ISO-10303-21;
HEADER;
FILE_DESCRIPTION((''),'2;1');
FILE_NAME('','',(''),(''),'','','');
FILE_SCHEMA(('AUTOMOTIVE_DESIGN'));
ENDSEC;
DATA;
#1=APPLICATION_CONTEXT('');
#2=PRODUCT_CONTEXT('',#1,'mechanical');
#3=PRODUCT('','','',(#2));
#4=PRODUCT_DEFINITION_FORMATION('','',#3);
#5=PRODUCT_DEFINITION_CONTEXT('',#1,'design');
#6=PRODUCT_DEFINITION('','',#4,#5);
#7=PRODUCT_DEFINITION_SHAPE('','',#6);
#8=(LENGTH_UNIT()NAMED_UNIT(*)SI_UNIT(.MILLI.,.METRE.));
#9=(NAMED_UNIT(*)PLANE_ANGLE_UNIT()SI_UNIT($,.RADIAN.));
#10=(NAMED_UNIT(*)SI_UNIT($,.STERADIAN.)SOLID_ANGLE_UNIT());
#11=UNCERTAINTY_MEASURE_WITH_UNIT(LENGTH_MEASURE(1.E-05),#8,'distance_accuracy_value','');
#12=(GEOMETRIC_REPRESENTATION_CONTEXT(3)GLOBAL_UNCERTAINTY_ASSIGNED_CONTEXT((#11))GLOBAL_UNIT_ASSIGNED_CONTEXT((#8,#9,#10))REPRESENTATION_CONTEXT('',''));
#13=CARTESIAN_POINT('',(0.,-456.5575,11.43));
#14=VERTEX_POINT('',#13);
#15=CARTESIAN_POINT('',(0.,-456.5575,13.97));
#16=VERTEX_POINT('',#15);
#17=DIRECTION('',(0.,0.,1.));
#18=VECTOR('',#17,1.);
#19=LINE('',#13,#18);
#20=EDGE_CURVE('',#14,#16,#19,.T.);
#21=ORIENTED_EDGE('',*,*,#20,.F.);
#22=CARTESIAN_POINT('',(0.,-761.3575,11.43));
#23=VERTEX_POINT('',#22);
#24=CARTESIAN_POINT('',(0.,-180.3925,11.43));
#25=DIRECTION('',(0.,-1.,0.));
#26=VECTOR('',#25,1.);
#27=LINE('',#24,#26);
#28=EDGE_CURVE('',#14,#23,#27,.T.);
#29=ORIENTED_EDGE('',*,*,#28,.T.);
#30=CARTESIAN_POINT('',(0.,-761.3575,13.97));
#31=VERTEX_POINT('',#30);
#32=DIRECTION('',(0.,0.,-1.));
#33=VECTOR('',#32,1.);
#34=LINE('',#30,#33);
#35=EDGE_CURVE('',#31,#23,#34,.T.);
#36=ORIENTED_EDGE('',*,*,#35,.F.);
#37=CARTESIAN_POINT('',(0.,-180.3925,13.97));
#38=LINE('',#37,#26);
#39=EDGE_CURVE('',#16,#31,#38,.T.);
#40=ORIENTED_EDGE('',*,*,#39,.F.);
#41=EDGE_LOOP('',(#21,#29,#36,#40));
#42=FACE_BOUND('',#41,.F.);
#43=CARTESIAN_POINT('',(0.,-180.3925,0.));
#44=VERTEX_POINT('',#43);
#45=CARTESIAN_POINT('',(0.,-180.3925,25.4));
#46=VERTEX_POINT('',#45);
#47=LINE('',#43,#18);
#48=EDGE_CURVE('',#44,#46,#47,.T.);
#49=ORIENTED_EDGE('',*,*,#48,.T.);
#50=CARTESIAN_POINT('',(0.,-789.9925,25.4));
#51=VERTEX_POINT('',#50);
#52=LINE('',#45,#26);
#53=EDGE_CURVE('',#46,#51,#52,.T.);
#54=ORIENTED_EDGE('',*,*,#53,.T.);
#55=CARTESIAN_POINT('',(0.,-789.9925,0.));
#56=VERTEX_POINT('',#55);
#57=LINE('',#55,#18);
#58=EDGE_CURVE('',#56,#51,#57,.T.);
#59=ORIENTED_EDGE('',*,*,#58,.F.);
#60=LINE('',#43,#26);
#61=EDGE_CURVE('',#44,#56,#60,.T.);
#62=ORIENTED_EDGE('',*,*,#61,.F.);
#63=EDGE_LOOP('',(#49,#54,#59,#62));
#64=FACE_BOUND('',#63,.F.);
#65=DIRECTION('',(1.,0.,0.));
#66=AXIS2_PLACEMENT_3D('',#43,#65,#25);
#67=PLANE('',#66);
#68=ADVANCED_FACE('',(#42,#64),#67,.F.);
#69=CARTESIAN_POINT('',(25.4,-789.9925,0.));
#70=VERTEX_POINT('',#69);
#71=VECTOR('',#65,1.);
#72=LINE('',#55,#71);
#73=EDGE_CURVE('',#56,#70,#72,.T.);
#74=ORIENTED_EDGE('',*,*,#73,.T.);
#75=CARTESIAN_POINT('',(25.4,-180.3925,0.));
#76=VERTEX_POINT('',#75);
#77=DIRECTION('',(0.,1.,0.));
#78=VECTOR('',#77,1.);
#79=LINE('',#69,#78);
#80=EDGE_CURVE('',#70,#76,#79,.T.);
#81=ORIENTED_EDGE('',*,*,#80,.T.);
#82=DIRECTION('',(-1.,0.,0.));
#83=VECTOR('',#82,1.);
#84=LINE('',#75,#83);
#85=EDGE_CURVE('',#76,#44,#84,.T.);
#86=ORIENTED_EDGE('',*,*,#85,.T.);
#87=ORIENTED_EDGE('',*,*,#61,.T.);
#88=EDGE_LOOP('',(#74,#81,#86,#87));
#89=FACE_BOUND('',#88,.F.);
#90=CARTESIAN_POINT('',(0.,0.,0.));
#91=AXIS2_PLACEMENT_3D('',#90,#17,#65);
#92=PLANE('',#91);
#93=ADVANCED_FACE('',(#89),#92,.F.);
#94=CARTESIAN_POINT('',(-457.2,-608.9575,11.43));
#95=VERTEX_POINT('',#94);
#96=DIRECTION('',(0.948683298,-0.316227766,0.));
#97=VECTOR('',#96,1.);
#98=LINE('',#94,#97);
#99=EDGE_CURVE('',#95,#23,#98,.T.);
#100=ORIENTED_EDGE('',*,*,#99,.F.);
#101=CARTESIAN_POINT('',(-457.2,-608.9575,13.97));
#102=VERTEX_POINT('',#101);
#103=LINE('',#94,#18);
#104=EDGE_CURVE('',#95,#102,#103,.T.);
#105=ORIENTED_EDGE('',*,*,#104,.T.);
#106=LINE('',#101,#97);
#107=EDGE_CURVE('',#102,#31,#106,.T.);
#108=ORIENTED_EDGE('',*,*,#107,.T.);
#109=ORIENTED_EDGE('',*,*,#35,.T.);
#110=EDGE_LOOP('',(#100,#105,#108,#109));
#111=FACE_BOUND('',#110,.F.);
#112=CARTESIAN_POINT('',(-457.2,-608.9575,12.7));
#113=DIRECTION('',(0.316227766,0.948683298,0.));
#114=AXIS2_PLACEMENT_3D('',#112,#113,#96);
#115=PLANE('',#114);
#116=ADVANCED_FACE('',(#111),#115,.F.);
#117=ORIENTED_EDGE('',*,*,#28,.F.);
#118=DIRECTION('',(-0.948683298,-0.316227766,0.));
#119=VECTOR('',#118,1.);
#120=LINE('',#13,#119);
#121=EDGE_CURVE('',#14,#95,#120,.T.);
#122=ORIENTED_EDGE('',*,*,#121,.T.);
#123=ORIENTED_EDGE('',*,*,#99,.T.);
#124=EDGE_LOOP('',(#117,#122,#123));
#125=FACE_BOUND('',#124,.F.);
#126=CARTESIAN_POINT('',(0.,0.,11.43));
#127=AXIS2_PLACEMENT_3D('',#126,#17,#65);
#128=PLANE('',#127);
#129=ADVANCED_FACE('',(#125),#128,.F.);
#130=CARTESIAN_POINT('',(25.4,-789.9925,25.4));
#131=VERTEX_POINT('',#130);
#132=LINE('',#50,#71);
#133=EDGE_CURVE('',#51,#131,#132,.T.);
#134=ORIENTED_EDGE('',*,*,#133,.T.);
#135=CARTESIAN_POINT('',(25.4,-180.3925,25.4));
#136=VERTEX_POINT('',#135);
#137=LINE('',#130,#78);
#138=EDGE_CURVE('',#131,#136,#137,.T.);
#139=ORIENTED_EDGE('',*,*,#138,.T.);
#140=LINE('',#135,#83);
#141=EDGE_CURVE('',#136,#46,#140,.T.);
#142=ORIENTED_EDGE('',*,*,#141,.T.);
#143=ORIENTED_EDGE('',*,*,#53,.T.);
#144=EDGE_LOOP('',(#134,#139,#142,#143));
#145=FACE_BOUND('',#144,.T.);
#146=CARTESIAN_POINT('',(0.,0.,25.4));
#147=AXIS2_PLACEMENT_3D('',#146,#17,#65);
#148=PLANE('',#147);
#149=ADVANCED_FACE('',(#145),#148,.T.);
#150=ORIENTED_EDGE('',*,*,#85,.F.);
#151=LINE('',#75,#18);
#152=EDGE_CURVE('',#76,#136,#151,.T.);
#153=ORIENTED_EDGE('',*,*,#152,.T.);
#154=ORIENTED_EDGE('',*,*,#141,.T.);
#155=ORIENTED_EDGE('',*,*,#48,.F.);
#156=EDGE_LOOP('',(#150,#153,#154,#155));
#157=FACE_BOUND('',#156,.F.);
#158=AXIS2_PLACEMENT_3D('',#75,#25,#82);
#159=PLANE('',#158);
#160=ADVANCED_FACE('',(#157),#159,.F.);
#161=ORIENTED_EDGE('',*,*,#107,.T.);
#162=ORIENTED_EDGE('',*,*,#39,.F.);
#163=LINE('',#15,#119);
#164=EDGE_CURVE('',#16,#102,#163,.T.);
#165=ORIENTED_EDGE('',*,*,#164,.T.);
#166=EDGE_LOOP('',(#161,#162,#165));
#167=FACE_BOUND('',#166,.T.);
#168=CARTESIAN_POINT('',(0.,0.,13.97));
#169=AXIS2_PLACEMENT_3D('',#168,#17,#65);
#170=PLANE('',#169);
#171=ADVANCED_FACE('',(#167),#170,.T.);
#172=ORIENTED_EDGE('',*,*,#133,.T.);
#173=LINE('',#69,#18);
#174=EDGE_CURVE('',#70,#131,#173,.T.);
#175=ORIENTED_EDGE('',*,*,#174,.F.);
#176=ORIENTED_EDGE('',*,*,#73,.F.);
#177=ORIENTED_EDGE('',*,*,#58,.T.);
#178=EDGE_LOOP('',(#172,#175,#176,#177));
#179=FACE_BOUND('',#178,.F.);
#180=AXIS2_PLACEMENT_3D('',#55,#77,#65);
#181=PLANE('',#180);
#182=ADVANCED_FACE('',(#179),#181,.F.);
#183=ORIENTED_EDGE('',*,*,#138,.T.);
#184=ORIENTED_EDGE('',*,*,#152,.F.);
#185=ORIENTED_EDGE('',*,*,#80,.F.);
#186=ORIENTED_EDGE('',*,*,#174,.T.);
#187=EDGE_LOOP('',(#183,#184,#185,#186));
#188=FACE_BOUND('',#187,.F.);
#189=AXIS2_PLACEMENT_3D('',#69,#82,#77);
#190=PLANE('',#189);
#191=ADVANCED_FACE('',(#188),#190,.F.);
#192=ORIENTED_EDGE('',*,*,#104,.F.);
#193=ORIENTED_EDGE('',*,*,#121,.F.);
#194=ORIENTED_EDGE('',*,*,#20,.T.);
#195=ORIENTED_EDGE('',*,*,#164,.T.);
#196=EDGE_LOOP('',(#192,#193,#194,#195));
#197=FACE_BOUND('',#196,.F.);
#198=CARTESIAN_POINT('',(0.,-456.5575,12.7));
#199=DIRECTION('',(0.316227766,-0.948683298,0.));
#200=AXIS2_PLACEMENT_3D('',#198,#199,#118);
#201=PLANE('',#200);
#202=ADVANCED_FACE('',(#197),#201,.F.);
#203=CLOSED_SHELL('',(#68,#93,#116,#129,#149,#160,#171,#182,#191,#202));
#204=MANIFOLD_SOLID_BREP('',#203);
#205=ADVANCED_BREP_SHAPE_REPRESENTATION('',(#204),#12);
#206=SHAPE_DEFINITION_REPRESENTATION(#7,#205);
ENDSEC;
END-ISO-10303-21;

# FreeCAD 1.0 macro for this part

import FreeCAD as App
import Part
import Sketcher
Q = App.Units.Quantity


def add_polygon(sketch, points):
    """Adds a closed chain of lines whose ends are joined by coincident constraints."""
    first, n = sketch.GeometryCount, len(points)
    for a, b in zip(points, points[1:] + points[:1]):
        sketch.addGeometry(Part.LineSegment(App.Vector(*a, 0), App.Vector(*b, 0)), False)
    for i in range(n):
        sketch.addConstraint(Sketcher.Constraint("Coincident", first + i, 2, first + (i + 1) % n, 1))

doc = App.newDocument("Part")
body = doc.addObject("PartDesign::Body", "Body")

# Sketch on XY plane
sketch1 = body.newObject("Sketcher::SketchObject", "Sketch")
sketch1.AttachmentSupport = (doc.getObject("XY_Plane"), [""])
sketch1.MapMode = "FlatFace"
add_polygon(sketch1, [(0, -180.3925), (0, -789.9925), (25.4, -789.9925), (25.4, -180.3925)])  # lines 0-3
sketch1.addConstraint([
    Sketcher.Constraint("Vertical", 0),
    Sketcher.Constraint("Horizontal", 1),
    Sketcher.Constraint("Vertical", 2),
    Sketcher.Constraint("Horizontal", 3),
    Sketcher.Constraint("PointOnObject", 0, 2, -2),
    Sketcher.Constraint("DistanceX", 1, 1, 1, 2, Q("1 in")),
    Sketcher.Constraint("DistanceY", 0, 2, 0, 1, Q("24 in")),
    Sketcher.Constraint("DistanceY", 0, 2, -1, 1, 789.9925),
])
pad1 = body.newObject("PartDesign::Pad", "Pad")
pad1.Profile = sketch1
pad1.Length = Q("1 in")

# Sketch on XY plane
sketch2 = body.newObject("Sketcher::SketchObject", "Sketch001")
sketch2.AttachmentSupport = (doc.getObject("XY_Plane"), [""])
sketch2.MapMode = "FlatFace"
sketch2.AttachmentOffset = App.Placement(App.Vector(0, 0, 0.5 * 25.4), App.Rotation())
add_polygon(sketch2, [(0, -761.3575), (0, -456.5575), (-457.2, -608.9575)])  # lines 0-2
sketch2.addConstraint([
    Sketcher.Constraint("Vertical", 0),
    Sketcher.Constraint("PointOnObject", 0, 2, -2),
    Sketcher.Constraint("Equal", 1, 2),
    Sketcher.Constraint("DistanceY", 0, 1, 0, 2, Q("12 in")),
    Sketcher.Constraint("DistanceX", 1, 2, -1, 1, Q("18 in")),
    Sketcher.Constraint("DistanceY", 0, 2, -1, 1, Q("17.9747 in")),
])
pad2 = body.newObject("PartDesign::Pad", "Pad001")
pad2.Profile = sketch2
pad2.Length = Q("0.1 in")
pad2.Midplane = True

doc.recompute()
